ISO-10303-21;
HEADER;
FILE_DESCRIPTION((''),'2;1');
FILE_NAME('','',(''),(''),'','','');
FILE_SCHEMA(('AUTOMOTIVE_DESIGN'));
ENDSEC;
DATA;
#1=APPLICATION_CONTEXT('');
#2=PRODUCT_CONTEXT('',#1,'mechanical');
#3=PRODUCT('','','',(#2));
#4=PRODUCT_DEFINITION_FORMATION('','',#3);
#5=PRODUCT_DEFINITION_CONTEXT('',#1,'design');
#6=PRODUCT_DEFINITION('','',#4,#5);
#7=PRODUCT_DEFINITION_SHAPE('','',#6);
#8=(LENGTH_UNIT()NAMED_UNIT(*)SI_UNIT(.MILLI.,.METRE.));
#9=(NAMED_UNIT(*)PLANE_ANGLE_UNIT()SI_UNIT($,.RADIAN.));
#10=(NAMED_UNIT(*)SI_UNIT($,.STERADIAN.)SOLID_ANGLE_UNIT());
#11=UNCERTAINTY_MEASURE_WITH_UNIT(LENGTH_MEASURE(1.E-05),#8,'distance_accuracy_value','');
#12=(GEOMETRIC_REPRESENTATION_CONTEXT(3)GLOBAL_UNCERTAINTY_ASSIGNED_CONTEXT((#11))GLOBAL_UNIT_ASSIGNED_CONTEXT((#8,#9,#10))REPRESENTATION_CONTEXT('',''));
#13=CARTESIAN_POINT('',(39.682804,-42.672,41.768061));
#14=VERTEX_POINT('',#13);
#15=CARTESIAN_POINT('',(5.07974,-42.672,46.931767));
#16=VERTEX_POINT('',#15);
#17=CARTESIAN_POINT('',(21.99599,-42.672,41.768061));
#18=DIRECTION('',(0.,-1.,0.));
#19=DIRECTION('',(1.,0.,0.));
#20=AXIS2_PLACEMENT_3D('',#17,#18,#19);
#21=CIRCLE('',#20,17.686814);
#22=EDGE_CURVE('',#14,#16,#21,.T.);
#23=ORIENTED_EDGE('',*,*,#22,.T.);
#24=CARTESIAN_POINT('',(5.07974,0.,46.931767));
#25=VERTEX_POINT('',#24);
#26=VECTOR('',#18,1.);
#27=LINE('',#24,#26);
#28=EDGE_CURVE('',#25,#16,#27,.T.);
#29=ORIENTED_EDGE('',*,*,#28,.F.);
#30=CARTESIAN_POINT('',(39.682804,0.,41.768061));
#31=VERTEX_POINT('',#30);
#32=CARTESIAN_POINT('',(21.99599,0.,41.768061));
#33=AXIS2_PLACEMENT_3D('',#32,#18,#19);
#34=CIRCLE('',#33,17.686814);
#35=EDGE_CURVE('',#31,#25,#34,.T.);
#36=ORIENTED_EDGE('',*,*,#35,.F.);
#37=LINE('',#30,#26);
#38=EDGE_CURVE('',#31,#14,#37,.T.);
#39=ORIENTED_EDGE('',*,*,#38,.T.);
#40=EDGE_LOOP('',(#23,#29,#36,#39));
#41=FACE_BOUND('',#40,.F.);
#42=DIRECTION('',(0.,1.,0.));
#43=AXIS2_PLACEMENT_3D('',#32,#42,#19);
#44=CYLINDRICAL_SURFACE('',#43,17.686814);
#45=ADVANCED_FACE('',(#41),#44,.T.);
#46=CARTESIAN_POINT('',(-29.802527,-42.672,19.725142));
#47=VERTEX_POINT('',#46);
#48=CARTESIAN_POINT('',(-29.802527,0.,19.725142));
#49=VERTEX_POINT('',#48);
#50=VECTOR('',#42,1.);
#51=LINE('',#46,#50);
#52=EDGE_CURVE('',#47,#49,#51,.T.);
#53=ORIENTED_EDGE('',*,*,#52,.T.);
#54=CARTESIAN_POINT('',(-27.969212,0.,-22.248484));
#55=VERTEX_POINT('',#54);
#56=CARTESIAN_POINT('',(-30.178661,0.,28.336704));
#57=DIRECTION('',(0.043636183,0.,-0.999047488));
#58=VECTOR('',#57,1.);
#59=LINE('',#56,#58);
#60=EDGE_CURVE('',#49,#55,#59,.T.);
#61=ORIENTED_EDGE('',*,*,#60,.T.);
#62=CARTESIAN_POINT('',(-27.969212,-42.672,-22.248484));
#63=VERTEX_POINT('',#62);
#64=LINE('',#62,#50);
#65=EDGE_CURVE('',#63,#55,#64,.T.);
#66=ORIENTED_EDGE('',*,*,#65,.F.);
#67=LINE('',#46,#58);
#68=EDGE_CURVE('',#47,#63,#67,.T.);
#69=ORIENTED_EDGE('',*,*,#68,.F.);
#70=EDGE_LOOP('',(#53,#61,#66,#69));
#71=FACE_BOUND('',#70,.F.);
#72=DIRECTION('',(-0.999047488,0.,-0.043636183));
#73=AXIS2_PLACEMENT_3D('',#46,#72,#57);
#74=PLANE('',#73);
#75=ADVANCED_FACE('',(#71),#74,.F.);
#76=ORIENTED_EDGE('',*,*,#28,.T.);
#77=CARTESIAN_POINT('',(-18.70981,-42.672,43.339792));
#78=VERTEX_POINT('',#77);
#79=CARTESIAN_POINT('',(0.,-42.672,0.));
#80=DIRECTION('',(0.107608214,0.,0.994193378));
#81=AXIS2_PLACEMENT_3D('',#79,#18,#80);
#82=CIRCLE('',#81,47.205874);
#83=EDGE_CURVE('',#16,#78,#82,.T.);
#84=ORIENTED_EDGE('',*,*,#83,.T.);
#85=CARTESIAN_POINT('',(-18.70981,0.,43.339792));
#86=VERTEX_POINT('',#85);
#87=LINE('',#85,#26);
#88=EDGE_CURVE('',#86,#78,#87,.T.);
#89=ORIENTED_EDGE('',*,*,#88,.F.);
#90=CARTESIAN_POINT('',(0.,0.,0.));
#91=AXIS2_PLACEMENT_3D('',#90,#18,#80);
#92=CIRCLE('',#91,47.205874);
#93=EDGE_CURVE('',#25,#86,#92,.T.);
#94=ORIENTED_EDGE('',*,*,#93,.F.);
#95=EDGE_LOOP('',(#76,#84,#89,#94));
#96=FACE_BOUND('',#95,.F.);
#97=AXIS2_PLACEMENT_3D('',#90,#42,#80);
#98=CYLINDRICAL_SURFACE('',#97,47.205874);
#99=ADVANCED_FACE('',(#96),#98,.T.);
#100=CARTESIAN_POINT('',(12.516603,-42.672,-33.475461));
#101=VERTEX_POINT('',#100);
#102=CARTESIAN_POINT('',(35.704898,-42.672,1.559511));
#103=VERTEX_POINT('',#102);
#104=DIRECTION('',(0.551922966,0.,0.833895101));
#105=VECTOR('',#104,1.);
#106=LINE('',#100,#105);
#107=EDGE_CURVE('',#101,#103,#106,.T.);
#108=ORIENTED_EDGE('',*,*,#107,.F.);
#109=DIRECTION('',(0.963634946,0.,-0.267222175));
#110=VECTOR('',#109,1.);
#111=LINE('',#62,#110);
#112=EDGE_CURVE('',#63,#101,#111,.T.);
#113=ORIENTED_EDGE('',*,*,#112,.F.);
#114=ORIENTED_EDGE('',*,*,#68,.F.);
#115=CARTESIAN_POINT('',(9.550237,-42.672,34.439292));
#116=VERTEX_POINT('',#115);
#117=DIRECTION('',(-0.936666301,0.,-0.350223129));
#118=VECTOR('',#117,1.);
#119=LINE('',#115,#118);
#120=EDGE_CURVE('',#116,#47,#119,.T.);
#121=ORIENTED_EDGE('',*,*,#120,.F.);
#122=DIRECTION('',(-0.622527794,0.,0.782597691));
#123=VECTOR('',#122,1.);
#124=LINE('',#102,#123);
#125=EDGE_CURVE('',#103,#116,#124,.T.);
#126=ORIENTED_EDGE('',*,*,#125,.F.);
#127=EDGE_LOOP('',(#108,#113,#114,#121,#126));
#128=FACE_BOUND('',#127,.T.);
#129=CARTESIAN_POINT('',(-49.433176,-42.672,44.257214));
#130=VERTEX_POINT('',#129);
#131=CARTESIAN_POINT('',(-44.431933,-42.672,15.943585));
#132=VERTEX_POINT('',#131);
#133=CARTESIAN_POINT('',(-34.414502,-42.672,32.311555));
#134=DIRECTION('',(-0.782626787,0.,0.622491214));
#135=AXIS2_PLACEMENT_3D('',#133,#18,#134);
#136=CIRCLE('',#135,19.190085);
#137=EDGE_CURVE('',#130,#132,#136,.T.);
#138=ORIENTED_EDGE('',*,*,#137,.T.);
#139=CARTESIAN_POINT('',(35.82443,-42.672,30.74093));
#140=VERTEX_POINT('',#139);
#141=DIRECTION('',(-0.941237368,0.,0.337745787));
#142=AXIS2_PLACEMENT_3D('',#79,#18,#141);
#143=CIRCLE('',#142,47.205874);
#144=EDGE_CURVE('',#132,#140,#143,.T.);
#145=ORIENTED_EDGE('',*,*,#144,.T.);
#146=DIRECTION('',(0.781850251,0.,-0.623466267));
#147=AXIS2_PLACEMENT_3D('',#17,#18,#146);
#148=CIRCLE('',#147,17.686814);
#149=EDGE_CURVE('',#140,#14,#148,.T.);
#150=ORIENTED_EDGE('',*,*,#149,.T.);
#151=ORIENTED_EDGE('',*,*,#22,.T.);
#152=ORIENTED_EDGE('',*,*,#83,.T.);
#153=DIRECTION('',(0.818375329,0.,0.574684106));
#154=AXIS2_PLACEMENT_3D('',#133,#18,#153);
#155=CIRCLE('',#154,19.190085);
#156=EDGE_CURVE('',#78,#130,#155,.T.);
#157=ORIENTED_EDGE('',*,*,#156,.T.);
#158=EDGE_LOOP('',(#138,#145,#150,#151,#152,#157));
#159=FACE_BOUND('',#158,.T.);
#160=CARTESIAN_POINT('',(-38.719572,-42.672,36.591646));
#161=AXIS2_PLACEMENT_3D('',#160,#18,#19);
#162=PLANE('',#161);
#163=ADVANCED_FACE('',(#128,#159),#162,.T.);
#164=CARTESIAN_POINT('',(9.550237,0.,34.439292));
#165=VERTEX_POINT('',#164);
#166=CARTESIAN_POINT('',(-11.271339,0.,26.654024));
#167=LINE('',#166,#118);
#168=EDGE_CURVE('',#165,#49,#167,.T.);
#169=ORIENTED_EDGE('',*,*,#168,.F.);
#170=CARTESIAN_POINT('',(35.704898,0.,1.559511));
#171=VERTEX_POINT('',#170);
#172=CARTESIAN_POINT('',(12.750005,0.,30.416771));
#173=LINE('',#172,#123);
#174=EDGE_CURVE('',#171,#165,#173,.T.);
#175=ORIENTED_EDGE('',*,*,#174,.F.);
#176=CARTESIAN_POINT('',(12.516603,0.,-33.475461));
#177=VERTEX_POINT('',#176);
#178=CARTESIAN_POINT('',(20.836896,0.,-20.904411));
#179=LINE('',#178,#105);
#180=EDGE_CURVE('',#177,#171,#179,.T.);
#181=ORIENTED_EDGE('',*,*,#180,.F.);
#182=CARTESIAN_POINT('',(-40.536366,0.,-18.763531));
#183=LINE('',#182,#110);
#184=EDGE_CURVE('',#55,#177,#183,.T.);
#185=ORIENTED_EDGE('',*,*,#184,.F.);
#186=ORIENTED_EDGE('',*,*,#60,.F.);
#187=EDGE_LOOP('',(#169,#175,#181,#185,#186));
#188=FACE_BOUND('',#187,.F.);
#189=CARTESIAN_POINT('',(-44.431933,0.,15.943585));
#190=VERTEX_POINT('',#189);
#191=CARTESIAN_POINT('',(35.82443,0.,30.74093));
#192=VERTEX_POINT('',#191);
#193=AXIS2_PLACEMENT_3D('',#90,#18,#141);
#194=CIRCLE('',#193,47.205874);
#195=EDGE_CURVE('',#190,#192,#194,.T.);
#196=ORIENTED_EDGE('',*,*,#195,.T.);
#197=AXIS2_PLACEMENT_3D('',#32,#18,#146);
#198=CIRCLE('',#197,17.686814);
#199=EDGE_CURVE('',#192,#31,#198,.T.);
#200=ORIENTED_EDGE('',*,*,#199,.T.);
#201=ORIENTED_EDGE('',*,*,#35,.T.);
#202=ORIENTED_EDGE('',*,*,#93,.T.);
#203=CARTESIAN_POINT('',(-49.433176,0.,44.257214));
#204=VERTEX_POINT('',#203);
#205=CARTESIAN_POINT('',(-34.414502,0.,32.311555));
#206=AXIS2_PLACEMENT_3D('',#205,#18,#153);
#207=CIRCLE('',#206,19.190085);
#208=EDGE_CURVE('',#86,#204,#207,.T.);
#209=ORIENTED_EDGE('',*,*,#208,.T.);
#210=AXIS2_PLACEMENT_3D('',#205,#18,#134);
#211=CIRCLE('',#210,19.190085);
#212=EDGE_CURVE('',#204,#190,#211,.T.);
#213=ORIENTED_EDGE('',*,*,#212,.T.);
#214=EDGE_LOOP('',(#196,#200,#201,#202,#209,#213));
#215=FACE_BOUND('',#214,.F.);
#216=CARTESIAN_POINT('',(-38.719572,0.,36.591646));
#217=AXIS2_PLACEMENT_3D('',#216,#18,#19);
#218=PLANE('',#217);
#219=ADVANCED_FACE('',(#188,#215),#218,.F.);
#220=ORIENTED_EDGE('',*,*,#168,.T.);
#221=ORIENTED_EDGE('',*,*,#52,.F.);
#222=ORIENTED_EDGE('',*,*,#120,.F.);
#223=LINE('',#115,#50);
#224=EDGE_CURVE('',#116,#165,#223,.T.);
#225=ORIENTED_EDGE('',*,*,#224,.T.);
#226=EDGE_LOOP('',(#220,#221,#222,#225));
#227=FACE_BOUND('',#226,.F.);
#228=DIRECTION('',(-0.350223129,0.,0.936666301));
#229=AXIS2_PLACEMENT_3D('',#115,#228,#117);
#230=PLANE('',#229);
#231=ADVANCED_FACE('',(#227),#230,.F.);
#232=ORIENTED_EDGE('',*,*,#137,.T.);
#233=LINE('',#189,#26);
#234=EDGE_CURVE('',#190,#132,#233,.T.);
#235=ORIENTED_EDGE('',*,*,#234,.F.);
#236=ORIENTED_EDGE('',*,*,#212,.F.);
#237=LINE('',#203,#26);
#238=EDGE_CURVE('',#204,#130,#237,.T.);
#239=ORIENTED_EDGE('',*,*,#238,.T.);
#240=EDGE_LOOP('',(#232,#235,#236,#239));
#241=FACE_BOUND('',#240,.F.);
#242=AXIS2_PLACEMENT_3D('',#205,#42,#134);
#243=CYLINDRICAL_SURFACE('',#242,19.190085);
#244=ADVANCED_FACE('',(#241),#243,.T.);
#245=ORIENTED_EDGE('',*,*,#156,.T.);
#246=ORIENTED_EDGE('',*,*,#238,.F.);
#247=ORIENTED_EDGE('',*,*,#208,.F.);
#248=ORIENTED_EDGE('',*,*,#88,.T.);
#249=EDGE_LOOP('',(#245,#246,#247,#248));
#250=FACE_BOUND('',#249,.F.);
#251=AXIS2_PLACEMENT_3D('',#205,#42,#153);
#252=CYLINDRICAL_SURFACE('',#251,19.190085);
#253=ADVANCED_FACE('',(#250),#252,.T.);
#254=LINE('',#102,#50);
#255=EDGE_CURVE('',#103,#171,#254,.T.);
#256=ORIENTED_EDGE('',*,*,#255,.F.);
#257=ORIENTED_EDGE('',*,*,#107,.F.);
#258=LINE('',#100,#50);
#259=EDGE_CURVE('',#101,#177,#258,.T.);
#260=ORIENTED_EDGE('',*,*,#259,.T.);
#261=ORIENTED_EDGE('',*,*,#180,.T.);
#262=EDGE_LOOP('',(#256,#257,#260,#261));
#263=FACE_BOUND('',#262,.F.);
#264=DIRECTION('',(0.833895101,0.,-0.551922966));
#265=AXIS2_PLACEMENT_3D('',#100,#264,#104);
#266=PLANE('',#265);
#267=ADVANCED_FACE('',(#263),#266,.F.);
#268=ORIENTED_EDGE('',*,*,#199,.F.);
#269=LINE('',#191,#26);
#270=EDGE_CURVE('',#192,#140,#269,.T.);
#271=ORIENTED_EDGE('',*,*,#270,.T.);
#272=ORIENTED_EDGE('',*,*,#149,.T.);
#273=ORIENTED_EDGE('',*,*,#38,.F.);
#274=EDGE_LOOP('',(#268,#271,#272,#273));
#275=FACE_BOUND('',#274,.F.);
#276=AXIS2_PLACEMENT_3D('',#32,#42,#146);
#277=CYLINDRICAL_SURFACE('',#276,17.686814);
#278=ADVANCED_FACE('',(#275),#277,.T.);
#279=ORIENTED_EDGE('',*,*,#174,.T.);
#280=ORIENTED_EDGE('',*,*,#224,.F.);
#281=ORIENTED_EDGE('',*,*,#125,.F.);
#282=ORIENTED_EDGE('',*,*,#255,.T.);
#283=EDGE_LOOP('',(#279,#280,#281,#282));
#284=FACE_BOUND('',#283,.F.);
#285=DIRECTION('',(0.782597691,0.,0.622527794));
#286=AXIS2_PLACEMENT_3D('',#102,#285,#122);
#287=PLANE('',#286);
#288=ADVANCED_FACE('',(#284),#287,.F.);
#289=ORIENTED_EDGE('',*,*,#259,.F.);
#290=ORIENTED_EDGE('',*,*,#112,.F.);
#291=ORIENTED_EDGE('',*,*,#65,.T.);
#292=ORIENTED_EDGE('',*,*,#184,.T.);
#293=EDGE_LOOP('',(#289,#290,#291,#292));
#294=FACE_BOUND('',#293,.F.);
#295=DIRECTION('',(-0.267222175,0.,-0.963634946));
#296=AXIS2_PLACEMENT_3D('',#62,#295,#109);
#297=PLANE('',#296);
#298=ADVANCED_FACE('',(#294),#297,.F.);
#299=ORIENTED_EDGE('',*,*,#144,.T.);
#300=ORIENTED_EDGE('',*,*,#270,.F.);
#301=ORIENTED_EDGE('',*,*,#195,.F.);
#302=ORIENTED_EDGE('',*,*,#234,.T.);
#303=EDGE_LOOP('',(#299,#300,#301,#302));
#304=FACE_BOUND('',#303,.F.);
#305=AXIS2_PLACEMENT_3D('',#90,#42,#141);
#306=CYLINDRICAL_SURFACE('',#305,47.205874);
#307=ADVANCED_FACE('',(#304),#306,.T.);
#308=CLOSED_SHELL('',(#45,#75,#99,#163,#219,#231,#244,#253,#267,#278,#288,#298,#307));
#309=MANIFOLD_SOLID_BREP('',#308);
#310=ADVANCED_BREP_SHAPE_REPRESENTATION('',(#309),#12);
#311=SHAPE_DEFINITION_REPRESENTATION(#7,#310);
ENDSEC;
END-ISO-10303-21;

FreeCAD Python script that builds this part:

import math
import FreeCAD as App
import Part
import Sketcher

V = App.Vector
Q = App.Units.Quantity

doc = App.newDocument("Part")
body = doc.addObject("PartDesign::Body", "Body")

# Sketch on XZ plane
sketch1 = body.newObject("Sketcher::SketchObject", "Sketch")
sketch1.AttachmentSupport = (doc.getObject("XZ_Plane"), [""])
sketch1.MapMode = "FlatFace"
sketch1.addGeometry([
    Part.ArcOfCircle(Part.Circle(V(-34, 32, 0), V(0, 0, 1), 19), math.radians(142), math.radians(239)),  # 0
    Part.ArcOfCircle(Part.Circle(V(0, 0, 0), V(0, 0, 1), 47), math.radians(160), math.radians(401)),  # 1
    Part.ArcOfCircle(Part.Circle(V(22, 42, 0), V(0, 0, 1), 18), math.radians(-39), math.radians(0)),  # 2
    Part.ArcOfCircle(Part.Circle(V(22, 42, 0), V(0, 0, 1), 18), math.radians(0), math.radians(163)),  # 3
    Part.ArcOfCircle(Part.Circle(V(0, 0, 0), V(0, 0, 1), 47), math.radians(84), math.radians(113)),  # 4
    Part.ArcOfCircle(Part.Circle(V(-34, 32, 0), V(0, 0, 1), 19), math.radians(35), math.radians(142)),  # 5
], False)
sketch1.addConstraint([
    Sketcher.Constraint("Coincident", 0, 2, 1, 1),
    Sketcher.Constraint("Coincident", 1, 2, 2, 1),
    Sketcher.Constraint("Tangent", 2, 2, 3, 1),
    Sketcher.Constraint("Coincident", 3, 2, 4, 1),
    Sketcher.Constraint("Coincident", 4, 2, 5, 1),
    Sketcher.Constraint("Tangent", 5, 2, 0, 1),
    Sketcher.Constraint("Coincident", 1, 3, -1, 1),
    Sketcher.Constraint("Coincident", 4, 3, -1, 1),
    Sketcher.Constraint("Equal", 2, 3),
    Sketcher.Constraint("Equal", 1, 4),
    Sketcher.Constraint("Equal", 0, 5),
    Sketcher.Constraint("Horizontal", 3, 3, 2, 2),
    Sketcher.Constraint("DistanceY", -1, 1, 0, 2, Q("0.6277002 in")),
    Sketcher.Constraint("Radius", 0, Q("19.190085 mm")),
    Sketcher.Constraint("Radius", 1, Q("47.205874 mm")),
    Sketcher.Constraint("Radius", 2, Q("17.686814 mm")),
    Sketcher.Constraint("DistanceX", 4, 2, 3, 3, Q("40.7058 mm")),
    Sketcher.Constraint("DistanceX", -1, 1, 2, 3, Q("21.99599 mm")),
    Sketcher.Constraint("DistanceY", -1, 1, 2, 3, Q("41.768061 mm")),
    Sketcher.Constraint("DistanceY", 0, 3, 5, 2, Q("11.945659 mm")),
])
pad1 = body.newObject("PartDesign::Pad", "Pad")
pad1.Profile = sketch1
pad1.Length = Q("1.68 in")

# Sketch on XZ plane
sketch2 = body.newObject("Sketcher::SketchObject", "Sketch001")
sketch2.AttachmentSupport = (doc.getObject("XZ_Plane"), [""])
sketch2.MapMode = "FlatFace"
sketch2.AttachmentOffset = App.Placement(V(0, 0, 1.68 * 25.4), App.Rotation())
sketch2.addGeometry([
    Part.LineSegment(V(36, 2, 0), V(10, 34, 0)),  # 0
    Part.LineSegment(V(10, 34, 0), V(-30, 20, 0)),  # 1
    Part.LineSegment(V(-30, 20, 0), V(-28, -22, 0)),  # 2
    Part.LineSegment(V(-28, -22, 0), V(13, -33, 0)),  # 3
    Part.LineSegment(V(13, -33, 0), V(36, 2, 0)),  # 4
], False)
sketch2.addConstraint([
    Sketcher.Constraint("Coincident", 0, 2, 1, 1),
    Sketcher.Constraint("Coincident", 1, 2, 2, 1),
    Sketcher.Constraint("Coincident", 2, 2, 3, 1),
    Sketcher.Constraint("Coincident", 3, 2, 4, 1),
    Sketcher.Constraint("Coincident", 4, 2, 0, 1),
    Sketcher.Constraint("Equal", 0, 1),
    Sketcher.Constraint("Equal", 1, 2),
    Sketcher.Constraint("Equal", 2, 3),
    Sketcher.Constraint("Equal", 3, 4),
    Sketcher.Constraint("DistanceX", -1, 1, 4, 2, Q("35.704898 mm")),
    Sketcher.Constraint("DistanceY", -1, 1, 0, 2, Q("34.439292 mm")),
    Sketcher.Constraint("DistanceY", -1, 1, 1, 2, Q("19.725142 mm")),
    Sketcher.Constraint("DistanceY", 3, 2, -1, 1, Q("33.475461 mm")),
    Sketcher.Constraint("DistanceY", -1, 1, 4, 2, Q("1.559511 mm")),
    Sketcher.Constraint("DistanceX", 2, 2, 0, 2, Q("37.519449 mm")),
])
pocket1 = body.newObject("PartDesign::Pocket", "Pocket")
pocket1.Profile = sketch2
pocket1.Length = Q("6.91 in")

doc.recompute()
